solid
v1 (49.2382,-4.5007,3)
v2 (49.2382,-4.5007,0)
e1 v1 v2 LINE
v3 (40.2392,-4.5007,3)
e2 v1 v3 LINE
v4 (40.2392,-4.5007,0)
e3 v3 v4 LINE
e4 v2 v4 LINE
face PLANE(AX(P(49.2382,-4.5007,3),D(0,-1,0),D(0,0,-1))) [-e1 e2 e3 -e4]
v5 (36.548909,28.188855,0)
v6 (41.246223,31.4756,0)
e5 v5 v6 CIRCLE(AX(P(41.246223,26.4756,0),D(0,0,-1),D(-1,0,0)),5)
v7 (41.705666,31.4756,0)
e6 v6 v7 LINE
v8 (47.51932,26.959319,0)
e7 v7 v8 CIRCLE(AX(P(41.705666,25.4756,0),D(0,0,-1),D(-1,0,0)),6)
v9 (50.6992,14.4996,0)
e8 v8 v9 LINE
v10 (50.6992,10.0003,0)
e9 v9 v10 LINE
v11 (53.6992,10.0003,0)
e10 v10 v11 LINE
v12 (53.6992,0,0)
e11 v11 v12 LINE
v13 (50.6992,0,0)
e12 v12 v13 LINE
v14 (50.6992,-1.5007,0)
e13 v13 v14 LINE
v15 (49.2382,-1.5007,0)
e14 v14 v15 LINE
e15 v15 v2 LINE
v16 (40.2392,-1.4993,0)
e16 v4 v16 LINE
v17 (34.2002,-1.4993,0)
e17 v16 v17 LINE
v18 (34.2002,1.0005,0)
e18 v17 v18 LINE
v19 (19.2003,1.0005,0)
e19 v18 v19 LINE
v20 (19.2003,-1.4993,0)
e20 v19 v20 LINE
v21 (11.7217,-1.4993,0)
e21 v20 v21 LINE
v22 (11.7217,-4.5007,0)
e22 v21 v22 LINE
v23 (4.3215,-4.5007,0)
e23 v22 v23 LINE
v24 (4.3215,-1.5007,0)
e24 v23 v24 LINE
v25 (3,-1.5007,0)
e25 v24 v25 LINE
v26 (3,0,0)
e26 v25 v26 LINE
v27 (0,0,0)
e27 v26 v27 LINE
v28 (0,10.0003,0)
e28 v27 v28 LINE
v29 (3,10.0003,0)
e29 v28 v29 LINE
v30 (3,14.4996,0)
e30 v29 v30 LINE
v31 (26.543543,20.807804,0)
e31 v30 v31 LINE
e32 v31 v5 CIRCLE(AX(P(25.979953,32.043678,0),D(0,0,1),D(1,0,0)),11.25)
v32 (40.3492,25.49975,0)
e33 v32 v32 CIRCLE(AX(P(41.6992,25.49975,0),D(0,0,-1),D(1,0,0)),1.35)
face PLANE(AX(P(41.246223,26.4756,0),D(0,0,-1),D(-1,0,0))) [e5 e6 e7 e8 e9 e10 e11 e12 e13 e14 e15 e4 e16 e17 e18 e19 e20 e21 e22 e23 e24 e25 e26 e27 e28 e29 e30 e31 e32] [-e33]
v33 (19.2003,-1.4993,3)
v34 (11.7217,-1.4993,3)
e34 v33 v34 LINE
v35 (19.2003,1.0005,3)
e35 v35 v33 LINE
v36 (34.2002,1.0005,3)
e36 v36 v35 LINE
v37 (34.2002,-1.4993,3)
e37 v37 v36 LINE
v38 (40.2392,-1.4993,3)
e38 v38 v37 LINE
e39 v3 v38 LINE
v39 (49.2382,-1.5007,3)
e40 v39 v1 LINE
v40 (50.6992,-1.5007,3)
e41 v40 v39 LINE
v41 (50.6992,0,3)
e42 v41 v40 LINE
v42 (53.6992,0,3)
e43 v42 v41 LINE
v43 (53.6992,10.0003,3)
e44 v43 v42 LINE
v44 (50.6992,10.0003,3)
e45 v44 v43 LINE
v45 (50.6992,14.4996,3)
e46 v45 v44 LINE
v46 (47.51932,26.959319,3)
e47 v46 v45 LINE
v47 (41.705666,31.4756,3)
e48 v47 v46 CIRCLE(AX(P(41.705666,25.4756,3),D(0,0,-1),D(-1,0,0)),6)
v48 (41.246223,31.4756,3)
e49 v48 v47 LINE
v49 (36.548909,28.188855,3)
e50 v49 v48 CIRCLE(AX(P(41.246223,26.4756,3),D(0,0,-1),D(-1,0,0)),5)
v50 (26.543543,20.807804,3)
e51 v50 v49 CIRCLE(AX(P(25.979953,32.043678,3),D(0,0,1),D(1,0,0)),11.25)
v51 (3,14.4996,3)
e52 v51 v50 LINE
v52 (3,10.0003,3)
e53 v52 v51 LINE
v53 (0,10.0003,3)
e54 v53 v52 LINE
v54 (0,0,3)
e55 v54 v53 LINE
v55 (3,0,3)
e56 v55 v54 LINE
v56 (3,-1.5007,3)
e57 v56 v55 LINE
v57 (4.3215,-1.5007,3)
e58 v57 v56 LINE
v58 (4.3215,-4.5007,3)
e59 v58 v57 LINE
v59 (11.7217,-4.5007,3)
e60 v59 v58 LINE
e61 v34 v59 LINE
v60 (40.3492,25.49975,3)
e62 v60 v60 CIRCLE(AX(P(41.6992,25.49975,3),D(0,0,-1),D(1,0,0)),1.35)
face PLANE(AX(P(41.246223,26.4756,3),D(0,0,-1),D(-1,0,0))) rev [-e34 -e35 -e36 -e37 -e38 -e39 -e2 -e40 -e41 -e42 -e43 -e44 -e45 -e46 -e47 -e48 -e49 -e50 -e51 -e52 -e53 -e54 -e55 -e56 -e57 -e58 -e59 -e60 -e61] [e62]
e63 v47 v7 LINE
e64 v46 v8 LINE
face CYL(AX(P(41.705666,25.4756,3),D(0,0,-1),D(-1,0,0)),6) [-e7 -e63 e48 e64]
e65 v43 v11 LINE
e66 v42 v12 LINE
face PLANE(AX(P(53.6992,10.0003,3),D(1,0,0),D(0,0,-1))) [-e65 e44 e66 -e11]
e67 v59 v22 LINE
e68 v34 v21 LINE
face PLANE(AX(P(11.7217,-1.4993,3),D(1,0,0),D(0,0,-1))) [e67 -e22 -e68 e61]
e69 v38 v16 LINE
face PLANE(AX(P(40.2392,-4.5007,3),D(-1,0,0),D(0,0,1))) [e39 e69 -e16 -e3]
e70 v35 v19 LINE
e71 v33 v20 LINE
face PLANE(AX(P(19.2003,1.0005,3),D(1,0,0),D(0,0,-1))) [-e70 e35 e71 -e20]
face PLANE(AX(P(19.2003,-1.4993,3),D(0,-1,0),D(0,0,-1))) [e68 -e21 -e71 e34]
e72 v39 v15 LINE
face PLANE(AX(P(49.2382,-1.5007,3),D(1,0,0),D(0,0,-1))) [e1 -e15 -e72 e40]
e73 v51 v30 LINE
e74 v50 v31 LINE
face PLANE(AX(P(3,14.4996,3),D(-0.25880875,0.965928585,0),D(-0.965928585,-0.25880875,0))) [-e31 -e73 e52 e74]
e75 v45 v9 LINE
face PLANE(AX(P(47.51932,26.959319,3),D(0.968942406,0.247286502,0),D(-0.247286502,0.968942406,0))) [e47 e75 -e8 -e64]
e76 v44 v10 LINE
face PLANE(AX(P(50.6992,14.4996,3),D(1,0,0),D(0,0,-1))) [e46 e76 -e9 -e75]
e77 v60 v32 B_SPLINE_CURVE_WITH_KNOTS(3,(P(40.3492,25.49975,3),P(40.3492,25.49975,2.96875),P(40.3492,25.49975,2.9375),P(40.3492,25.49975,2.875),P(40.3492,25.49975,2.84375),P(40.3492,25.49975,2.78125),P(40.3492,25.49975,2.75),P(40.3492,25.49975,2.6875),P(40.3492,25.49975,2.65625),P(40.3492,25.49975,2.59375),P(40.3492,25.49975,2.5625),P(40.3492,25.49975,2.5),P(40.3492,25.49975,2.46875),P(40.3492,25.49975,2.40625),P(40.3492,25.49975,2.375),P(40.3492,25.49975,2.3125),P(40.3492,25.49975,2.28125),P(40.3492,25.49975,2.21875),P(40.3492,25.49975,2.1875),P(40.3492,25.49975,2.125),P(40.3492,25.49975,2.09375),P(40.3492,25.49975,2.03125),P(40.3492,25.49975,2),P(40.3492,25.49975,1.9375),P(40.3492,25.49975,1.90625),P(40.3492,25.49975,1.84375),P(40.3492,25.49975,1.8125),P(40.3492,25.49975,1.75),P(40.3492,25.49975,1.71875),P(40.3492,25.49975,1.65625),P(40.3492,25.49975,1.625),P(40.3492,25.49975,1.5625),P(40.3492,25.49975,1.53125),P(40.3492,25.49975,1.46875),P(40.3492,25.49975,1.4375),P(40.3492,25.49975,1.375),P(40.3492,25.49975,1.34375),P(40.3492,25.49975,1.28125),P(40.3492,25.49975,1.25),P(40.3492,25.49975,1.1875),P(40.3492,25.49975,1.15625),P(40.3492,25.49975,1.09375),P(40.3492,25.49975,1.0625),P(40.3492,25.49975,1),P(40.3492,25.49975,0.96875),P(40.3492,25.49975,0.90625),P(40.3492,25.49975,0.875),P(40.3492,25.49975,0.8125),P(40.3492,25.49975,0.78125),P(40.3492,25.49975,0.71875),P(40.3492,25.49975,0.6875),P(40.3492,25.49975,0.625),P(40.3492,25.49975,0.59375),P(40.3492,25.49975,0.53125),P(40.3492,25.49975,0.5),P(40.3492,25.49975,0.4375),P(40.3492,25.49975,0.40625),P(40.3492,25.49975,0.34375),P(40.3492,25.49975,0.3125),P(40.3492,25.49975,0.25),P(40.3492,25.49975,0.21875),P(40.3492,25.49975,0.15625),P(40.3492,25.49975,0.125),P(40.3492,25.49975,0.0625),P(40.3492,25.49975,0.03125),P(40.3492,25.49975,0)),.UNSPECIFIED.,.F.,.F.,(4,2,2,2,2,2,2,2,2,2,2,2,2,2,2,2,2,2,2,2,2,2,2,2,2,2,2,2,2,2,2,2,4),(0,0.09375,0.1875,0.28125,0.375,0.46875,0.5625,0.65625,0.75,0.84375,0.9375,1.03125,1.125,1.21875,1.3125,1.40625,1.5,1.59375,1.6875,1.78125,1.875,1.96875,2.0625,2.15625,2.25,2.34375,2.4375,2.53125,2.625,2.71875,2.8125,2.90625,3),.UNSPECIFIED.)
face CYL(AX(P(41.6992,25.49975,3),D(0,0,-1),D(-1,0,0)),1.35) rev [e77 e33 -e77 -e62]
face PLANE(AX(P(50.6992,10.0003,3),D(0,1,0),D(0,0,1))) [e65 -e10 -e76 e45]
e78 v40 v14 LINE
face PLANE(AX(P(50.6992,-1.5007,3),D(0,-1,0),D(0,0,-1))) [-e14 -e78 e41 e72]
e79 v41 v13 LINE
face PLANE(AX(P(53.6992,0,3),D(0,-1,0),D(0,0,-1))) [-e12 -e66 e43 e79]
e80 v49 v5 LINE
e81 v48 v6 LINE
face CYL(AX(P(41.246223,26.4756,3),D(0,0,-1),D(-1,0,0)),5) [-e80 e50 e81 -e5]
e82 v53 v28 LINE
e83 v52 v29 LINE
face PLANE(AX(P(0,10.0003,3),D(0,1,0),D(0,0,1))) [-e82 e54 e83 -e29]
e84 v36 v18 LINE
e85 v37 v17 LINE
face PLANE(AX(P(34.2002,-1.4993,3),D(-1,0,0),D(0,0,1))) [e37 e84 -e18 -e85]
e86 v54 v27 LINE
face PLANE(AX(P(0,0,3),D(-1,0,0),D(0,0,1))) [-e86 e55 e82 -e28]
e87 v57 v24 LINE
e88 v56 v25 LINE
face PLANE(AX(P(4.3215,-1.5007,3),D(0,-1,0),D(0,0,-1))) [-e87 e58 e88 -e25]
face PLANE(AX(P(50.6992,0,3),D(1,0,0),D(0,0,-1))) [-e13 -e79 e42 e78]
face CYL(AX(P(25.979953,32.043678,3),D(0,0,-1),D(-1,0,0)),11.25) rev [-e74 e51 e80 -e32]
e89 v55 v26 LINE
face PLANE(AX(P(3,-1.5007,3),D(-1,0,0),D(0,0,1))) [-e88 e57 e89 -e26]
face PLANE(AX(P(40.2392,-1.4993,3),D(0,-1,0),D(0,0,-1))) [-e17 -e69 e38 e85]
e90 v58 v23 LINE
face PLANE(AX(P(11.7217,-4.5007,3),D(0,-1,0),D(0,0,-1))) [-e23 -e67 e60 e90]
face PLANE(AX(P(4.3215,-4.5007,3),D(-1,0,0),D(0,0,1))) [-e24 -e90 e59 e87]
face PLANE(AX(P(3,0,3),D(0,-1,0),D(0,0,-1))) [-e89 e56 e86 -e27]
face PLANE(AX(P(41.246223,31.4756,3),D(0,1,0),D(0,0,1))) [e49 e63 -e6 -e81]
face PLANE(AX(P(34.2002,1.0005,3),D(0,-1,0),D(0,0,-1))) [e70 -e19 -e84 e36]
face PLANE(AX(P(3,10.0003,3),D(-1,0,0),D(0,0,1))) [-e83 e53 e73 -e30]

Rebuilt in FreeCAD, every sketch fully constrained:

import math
import FreeCAD as App
import Part
import Sketcher
from FreeCAD import Vector

doc = App.newDocument("Part")
body = doc.addObject("PartDesign::Body", "Body")

# Sketch on XY plane
sketch1 = doc.addObject("Sketcher::SketchObject", "Sketch")
body.addObject(sketch1)
sketch1.AttachmentSupport = (doc.XY_Plane, [""])
sketch1.MapMode = "FlatFace"
sketch1.addGeometry([
    Part.LineSegment(Vector(41.25, 31.48, 0), Vector(41.71, 31.48, 0)),  # 0
    Part.ArcOfCircle(Part.Circle(Vector(41.71, 25.48, 0), Vector(0, 0, 1), 6), math.radians(14), math.radians(90)),  # 1
    Part.LineSegment(Vector(47.52, 26.96, 0), Vector(50.7, 14.5, 0)),  # 2
    Part.LineSegment(Vector(50.7, 14.5, 0), Vector(50.7, 10, 0)),  # 3
    Part.LineSegment(Vector(50.7, 10, 0), Vector(53.7, 10, 0)),  # 4
    Part.LineSegment(Vector(53.7, 10, 0), Vector(53.7, 0, 0)),  # 5
    Part.LineSegment(Vector(53.7, 0, 0), Vector(50.7, 0, 0)),  # 6
    Part.LineSegment(Vector(50.7, 0, 0), Vector(50.7, -1.5, 0)),  # 7
    Part.LineSegment(Vector(50.7, -1.5, 0), Vector(49.24, -1.5, 0)),  # 8
    Part.LineSegment(Vector(49.24, -1.5, 0), Vector(49.24, -4.5, 0)),  # 9
    Part.LineSegment(Vector(49.24, -4.5, 0), Vector(40.24, -4.5, 0)),  # 10
    Part.LineSegment(Vector(40.24, -4.5, 0), Vector(40.24, -1.5, 0)),  # 11
    Part.LineSegment(Vector(40.24, -1.5, 0), Vector(34.2, -1.5, 0)),  # 12
    Part.LineSegment(Vector(34.2, -1.5, 0), Vector(34.2, 1, 0)),  # 13
    Part.LineSegment(Vector(34.2, 1, 0), Vector(19.2, 1, 0)),  # 14
    Part.LineSegment(Vector(19.2, 1, 0), Vector(19.2, -1.5, 0)),  # 15
    Part.LineSegment(Vector(19.2, -1.5, 0), Vector(11.72, -1.5, 0)),  # 16
    Part.LineSegment(Vector(11.72, -1.5, 0), Vector(11.72, -4.5, 0)),  # 17
    Part.LineSegment(Vector(11.72, -4.5, 0), Vector(4.32, -4.5, 0)),  # 18
    Part.LineSegment(Vector(4.32, -4.5, 0), Vector(4.32, -1.5, 0)),  # 19
    Part.LineSegment(Vector(4.32, -1.5, 0), Vector(3, -1.5, 0)),  # 20
    Part.LineSegment(Vector(3, -1.5, 0), Vector(3, 0, 0)),  # 21
    Part.LineSegment(Vector(3, 0, 0), Vector(0, 0, 0)),  # 22
    Part.LineSegment(Vector(0, 0, 0), Vector(0, 10, 0)),  # 23
    Part.LineSegment(Vector(0, 10, 0), Vector(3, 10, 0)),  # 24
    Part.LineSegment(Vector(3, 10, 0), Vector(3, 14.5, 0)),  # 25
    Part.LineSegment(Vector(3, 14.5, 0), Vector(26.54, 20.81, 0)),  # 26
    Part.ArcOfCircle(Part.Circle(Vector(25.98, 32.04, 0), Vector(0, 0, 1), 11.25), math.radians(-87), math.radians(-20)),  # 27
    Part.ArcOfCircle(Part.Circle(Vector(41.25, 26.48, 0), Vector(0, 0, 1), 5), math.radians(90), math.radians(160)),  # 28
    Part.Circle(Vector(41.7, 25.5, 0), Vector(0, 0, 1), 1.35),  # 29
], False)
sketch1.addConstraint([
    Sketcher.Constraint("Tangent", 0, 2, 1, 2),
    Sketcher.Constraint("Tangent", 1, 1, 2, 1),
    Sketcher.Constraint("Coincident", 2, 2, 3, 1),
    Sketcher.Constraint("Coincident", 3, 2, 4, 1),
    Sketcher.Constraint("Coincident", 4, 2, 5, 1),
    Sketcher.Constraint("Coincident", 5, 2, 6, 1),
    Sketcher.Constraint("Coincident", 6, 2, 7, 1),
    Sketcher.Constraint("Coincident", 7, 2, 8, 1),
    Sketcher.Constraint("Coincident", 8, 2, 9, 1),
    Sketcher.Constraint("Coincident", 9, 2, 10, 1),
    Sketcher.Constraint("Coincident", 10, 2, 11, 1),
    Sketcher.Constraint("Coincident", 11, 2, 12, 1),
    Sketcher.Constraint("Coincident", 12, 2, 13, 1),
    Sketcher.Constraint("Coincident", 13, 2, 14, 1),
    Sketcher.Constraint("Coincident", 14, 2, 15, 1),
    Sketcher.Constraint("Coincident", 15, 2, 16, 1),
    Sketcher.Constraint("Coincident", 16, 2, 17, 1),
    Sketcher.Constraint("Coincident", 17, 2, 18, 1),
    Sketcher.Constraint("Coincident", 18, 2, 19, 1),
    Sketcher.Constraint("Coincident", 19, 2, 20, 1),
    Sketcher.Constraint("Coincident", 20, 2, 21, 1),
    Sketcher.Constraint("Coincident", 21, 2, 22, 1),
    Sketcher.Constraint("Coincident", 22, 2, 23, 1),
    Sketcher.Constraint("Coincident", 23, 2, 24, 1),
    Sketcher.Constraint("Coincident", 24, 2, 25, 1),
    Sketcher.Constraint("Coincident", 25, 2, 26, 1),
    Sketcher.Constraint("Coincident", 26, 2, 27, 1),
    Sketcher.Constraint("Tangent", 27, 2, 28, 2),
    Sketcher.Constraint("Tangent", 28, 1, 0, 1),
    Sketcher.Constraint("Horizontal", 0),
    Sketcher.Constraint("Vertical", 3),
    Sketcher.Constraint("Horizontal", 4),
    Sketcher.Constraint("Vertical", 5),
    Sketcher.Constraint("Horizontal", 6),
    Sketcher.Constraint("Vertical", 7),
    Sketcher.Constraint("Horizontal", 8),
    Sketcher.Constraint("Vertical", 9),
    Sketcher.Constraint("Horizontal", 10),
    Sketcher.Constraint("Vertical", 11),
    Sketcher.Constraint("Horizontal", 12),
    Sketcher.Constraint("Vertical", 13),
    Sketcher.Constraint("Horizontal", 14),
    Sketcher.Constraint("Vertical", 15),
    Sketcher.Constraint("Horizontal", 16),
    Sketcher.Constraint("Vertical", 17),
    Sketcher.Constraint("Horizontal", 18),
    Sketcher.Constraint("Vertical", 19),
    Sketcher.Constraint("Horizontal", 20),
    Sketcher.Constraint("Vertical", 21),
    Sketcher.Constraint("Horizontal", 22),
    Sketcher.Constraint("Vertical", 23),
    Sketcher.Constraint("Horizontal", 24),
    Sketcher.Constraint("Vertical", 25),
    Sketcher.Constraint("Coincident", 22, 2, -1, 1),
    Sketcher.Constraint("PointOnObject", 5, 2, -1),
    Sketcher.Constraint("Horizontal", 12, 2, 15, 2),
    Sketcher.Constraint("Horizontal", 10, 2, 17, 2),
    Sketcher.Constraint("Horizontal", 8, 2, 19, 2),
    Sketcher.Constraint("Horizontal", 4, 2, 23, 2),
    Sketcher.Constraint("Horizontal", 2, 2, 25, 2),
    Sketcher.Constraint("Vertical", 3, 2, 6, 2),
    Sketcher.Constraint("Vertical", 21, 2, 24, 2),
    Sketcher.Constraint("Equal", 6, 22),
    Sketcher.Constraint("Equal", 24, 9),
    Sketcher.Constraint("Radius", 1, 6.0),
    Sketcher.Constraint("Radius", 28, 5.0),
    Sketcher.Constraint("Diameter", 29, 2.7),
    Sketcher.Constraint("DistanceX", 4, 1, 4, 2, 3.0),
    Sketcher.Constraint("Radius", 27, 11.25),
    Sketcher.Constraint("DistanceX", 29, 3, 2, 2, 9.0),
    Sketcher.Constraint("DistanceX", 8, 2, 8, 1, 1.461),
    Sketcher.Constraint("DistanceX", 10, 2, 10, 1, 8.999),
    Sketcher.Constraint("DistanceX", 12, 2, 12, 1, 6.039),
    Sketcher.Constraint("Distance", 26, 24.374),
    Sketcher.Constraint("DistanceX", 14, 2, 14, 1, 14.9999),
    Sketcher.Constraint("DistanceX", 16, 2, 16, 1, 7.4786),
    Sketcher.Constraint("DistanceX", 18, 2, 18, 1, 7.4002),
    Sketcher.Constraint("DistanceX", 20, 2, 20, 1, 1.3215),
    Sketcher.Constraint("DistanceY", 3, 2, 3, 1, 4.4993),
    Sketcher.Constraint("DistanceY", 5, 2, 5, 1, 10.0003),
    Sketcher.Constraint("DistanceY", 7, 2, 7, 1, 1.5007),
    Sketcher.Constraint("DistanceY", 11, 1, 11, 2, 3.0014),
    Sketcher.Constraint("DistanceY", 13, 1, 13, 2, 2.4998),
    Sketcher.Constraint("DistanceY", 2, 2, 1, 3, 10.976),
    Sketcher.Constraint("Distance", 2, 12.859091),
    Sketcher.Constraint("DistanceX", 0, 1, 0, 2, 0.459443),
    Sketcher.Constraint("DistanceY", -1, 1, 27, 3, 32.043678),
    Sketcher.Constraint("DistanceY", -1, 1, 29, 3, 25.49975),
])
pad1 = doc.addObject("PartDesign::Pad", "Pad")
body.addObject(pad1)
pad1.Profile = sketch1
pad1.Length = 3

doc.recompute()
